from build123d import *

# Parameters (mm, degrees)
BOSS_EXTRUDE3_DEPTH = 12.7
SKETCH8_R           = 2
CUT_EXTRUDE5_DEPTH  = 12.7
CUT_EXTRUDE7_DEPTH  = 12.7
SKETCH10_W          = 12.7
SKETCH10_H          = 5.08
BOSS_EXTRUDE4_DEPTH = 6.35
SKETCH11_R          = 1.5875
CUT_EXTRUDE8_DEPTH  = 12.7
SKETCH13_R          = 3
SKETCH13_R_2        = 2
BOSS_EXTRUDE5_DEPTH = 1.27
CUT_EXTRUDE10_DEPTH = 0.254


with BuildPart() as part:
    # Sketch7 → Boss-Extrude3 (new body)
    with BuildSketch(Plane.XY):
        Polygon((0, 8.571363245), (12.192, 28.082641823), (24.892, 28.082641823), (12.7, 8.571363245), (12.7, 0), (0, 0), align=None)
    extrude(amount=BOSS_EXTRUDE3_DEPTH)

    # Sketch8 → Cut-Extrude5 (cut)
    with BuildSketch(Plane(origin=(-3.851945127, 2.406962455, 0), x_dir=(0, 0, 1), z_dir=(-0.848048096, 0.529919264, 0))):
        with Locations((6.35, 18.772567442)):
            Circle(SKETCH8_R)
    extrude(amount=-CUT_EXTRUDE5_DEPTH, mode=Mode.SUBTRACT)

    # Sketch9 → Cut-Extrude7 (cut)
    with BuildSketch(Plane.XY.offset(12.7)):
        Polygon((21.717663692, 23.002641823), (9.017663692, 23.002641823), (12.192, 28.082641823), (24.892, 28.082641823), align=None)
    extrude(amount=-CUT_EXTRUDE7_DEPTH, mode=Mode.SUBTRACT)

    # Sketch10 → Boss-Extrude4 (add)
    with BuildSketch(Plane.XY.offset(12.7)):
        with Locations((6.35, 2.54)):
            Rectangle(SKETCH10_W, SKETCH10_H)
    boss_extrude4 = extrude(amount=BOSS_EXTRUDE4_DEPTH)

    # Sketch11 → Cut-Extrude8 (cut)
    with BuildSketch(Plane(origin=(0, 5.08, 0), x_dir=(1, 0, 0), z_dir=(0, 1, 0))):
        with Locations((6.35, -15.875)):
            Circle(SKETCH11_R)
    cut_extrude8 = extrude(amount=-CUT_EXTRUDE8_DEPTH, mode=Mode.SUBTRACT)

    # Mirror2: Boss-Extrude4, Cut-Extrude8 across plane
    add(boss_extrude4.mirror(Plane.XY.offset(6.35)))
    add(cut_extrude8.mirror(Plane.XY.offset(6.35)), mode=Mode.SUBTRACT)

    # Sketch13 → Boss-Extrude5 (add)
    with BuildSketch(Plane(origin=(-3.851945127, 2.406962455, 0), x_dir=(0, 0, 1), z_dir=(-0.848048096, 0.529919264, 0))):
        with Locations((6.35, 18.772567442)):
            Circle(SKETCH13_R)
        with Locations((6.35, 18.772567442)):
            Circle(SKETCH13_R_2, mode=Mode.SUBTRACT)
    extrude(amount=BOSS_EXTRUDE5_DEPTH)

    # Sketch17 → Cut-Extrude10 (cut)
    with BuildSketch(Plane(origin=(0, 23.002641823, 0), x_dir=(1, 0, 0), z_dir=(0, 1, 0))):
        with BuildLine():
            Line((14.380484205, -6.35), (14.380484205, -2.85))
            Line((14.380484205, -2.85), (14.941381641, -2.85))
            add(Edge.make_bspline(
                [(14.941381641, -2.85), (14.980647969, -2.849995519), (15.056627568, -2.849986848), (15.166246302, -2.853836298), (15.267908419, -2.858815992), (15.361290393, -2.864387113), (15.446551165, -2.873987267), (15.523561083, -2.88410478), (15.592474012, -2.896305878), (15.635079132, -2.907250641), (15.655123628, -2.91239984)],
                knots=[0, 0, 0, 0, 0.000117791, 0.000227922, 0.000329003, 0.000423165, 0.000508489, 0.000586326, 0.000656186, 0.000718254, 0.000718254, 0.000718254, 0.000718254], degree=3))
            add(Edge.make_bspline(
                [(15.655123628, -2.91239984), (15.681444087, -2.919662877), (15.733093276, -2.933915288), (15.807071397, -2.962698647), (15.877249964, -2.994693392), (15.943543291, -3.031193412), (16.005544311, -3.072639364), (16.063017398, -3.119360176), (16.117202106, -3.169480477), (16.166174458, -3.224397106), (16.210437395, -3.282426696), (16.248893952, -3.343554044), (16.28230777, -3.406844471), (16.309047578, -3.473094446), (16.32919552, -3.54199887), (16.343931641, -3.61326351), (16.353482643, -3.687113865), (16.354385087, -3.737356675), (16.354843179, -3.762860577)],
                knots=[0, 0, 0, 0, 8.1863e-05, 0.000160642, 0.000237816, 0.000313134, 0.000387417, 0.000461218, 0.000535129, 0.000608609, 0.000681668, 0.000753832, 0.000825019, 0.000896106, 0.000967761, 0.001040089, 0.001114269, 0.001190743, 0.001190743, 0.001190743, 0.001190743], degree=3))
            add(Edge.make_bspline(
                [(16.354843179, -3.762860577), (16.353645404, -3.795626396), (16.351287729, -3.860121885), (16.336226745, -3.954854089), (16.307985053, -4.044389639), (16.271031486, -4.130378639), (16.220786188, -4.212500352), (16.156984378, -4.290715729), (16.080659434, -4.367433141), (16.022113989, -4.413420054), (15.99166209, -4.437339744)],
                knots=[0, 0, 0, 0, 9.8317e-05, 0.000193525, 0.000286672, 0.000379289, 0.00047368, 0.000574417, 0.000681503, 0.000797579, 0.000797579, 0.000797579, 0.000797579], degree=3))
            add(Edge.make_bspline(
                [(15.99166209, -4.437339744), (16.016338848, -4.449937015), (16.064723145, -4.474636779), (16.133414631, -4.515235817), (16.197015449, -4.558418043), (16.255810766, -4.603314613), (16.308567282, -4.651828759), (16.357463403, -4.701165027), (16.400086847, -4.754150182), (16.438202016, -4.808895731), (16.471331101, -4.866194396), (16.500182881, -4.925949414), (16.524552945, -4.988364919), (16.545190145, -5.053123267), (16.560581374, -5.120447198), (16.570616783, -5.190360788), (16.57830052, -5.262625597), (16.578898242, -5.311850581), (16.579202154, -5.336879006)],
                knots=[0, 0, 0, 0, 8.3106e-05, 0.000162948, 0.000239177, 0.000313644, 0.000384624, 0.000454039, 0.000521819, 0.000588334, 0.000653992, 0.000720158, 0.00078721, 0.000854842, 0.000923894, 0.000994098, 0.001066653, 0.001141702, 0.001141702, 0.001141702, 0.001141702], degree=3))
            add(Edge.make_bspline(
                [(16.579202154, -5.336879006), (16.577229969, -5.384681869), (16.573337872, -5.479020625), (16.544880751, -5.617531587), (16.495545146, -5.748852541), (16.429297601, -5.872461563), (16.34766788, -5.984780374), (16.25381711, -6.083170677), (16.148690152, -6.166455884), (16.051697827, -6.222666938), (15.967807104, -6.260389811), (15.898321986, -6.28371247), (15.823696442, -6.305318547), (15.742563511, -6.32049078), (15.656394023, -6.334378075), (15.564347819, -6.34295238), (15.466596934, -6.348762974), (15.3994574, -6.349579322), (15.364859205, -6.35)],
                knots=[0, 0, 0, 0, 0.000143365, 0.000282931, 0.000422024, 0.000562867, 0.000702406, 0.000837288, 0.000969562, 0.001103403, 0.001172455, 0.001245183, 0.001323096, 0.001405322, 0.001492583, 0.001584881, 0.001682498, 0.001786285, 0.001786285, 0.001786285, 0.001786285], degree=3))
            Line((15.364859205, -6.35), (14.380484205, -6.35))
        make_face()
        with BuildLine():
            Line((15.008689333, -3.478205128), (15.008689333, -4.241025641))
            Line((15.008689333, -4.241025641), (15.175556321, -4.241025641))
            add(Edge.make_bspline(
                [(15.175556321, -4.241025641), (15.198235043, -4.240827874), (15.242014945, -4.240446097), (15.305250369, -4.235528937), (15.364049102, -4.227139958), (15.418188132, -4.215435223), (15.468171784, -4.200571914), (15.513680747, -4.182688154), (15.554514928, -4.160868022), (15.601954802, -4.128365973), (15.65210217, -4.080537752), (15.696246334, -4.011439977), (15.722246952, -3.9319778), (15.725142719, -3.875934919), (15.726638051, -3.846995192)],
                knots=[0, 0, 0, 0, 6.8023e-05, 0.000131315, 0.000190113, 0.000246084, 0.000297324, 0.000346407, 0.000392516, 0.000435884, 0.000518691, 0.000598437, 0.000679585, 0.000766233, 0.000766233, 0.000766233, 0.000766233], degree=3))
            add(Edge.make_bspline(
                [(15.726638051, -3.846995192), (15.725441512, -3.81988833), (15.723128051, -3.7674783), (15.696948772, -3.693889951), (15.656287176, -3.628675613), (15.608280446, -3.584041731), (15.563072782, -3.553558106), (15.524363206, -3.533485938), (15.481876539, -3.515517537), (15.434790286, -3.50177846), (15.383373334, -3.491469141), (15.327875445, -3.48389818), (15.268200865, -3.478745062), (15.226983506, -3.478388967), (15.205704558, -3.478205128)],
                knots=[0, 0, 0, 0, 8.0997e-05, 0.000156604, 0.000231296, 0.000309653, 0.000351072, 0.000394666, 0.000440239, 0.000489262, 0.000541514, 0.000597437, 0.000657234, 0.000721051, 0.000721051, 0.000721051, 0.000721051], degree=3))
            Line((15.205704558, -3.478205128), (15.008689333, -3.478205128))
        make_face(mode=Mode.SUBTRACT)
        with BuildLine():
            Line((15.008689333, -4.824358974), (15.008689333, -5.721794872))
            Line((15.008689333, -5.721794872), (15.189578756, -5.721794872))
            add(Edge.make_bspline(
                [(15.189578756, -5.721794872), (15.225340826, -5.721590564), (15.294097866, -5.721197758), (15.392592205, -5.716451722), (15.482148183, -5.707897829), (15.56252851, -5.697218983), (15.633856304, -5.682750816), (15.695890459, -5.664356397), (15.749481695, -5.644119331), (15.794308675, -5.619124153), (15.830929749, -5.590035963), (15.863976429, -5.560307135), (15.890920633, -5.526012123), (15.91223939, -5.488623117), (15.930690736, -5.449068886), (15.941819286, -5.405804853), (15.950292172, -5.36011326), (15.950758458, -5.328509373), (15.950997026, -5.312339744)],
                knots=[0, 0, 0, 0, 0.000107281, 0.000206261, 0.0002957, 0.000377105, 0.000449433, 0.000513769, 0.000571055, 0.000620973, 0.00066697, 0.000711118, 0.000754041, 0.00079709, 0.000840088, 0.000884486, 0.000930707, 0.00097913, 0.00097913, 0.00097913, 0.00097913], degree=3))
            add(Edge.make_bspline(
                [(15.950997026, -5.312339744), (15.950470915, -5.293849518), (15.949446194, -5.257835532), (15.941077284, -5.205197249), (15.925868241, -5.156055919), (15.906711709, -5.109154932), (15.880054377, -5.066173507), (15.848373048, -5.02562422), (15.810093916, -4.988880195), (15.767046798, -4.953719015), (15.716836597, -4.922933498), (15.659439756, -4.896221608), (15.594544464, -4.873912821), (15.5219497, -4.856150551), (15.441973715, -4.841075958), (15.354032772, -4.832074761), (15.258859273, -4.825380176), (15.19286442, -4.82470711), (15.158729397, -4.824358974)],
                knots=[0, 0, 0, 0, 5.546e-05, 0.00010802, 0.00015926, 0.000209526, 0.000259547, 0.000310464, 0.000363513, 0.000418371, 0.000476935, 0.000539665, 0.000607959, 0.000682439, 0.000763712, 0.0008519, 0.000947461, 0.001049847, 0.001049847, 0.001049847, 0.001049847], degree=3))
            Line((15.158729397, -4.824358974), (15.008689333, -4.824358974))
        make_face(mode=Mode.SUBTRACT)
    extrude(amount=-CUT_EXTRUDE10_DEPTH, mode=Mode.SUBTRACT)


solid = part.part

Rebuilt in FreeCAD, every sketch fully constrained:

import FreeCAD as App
import Part
import Sketcher
Q = App.Units.Quantity


def add_polygon(sketch, points):
    """Adds a closed chain of lines whose ends are joined by coincident constraints."""
    first, n = sketch.GeometryCount, len(points)
    for a, b in zip(points, points[1:] + points[:1]):
        sketch.addGeometry(Part.LineSegment(App.Vector(*a, 0), App.Vector(*b, 0)), False)
    for i in range(n):
        sketch.addConstraint(Sketcher.Constraint("Coincident", first + i, 2, first + (i + 1) % n, 1))

doc = App.newDocument("Part")
body = doc.addObject("PartDesign::Body", "Body")

sketch1 = doc.addObject("Sketcher::SketchObject", "Sketch")
body.addObject(sketch1)
sketch1.AttachmentSupport = (doc.XY_Plane, [""])
sketch1.MapMode = "FlatFace"
add_polygon(sketch1, [(12, 28), (0, 9), (0, 0), (13, 0), (13, 9), (25, 28)])
sketch1.addConstraint([
    Sketcher.Constraint("Vertical", 1),
    Sketcher.Constraint("Horizontal", 2),
    Sketcher.Constraint("Vertical", 3),
    Sketcher.Constraint("Horizontal", 5),
    Sketcher.Constraint("Coincident", 1, 2, -1, 1),
    Sketcher.Constraint("Parallel", 0, 4),
    Sketcher.Constraint("Horizontal", 0, 2, 3, 2),
    Sketcher.Constraint("DistanceX", 2, 1, 2, 2, Q("0.5 in")),
    Sketcher.Constraint("Angle", 0, Q("-122 deg")),
    Sketcher.Constraint("DistanceX", -1, 1, 4, 2, Q("0.98 in")),
    Sketcher.Constraint("DistanceY", 1, 2, 1, 1, Q("8.571363 mm")),
])
pad1 = doc.addObject("PartDesign::Pad", "Pad")
body.addObject(pad1)
pad1.Profile = sketch1
pad1.Length = Q("0.5 in")

sketch2 = doc.addObject("Sketcher::SketchObject", "Sketch001")
body.addObject(sketch2)
sketch2.Placement = App.Placement(App.Vector(-3.851945, 2.406962, 0), App.Rotation(App.Vector(0, 0, 1), App.Vector(0.529919264, 0.848048096, 0), App.Vector(-0.848048096, 0.529919264, 0), "ZXY"))
sketch2.addGeometry(Part.Circle(App.Vector(6.3, 18.8, 0), App.Vector(0, 0, 1), 2), False)
sketch2.addConstraint([
    Sketcher.Constraint("Diameter", 0, Q("4 mm")),
    Sketcher.Constraint("DistanceX", -1, 1, 0, 3, Q("0.25 in")),
    Sketcher.Constraint("DistanceY", -1, 1, 0, 3, Q("18.772567 mm")),
])
pocket1 = doc.addObject("PartDesign::Pocket", "Pocket")
body.addObject(pocket1)
pocket1.Profile = sketch2
pocket1.Length = Q("0.5 in")

sketch3 = doc.addObject("Sketcher::SketchObject", "Sketch002")
body.addObject(sketch3)
sketch3.AttachmentSupport = (doc.XY_Plane, [""])
sketch3.MapMode = "FlatFace"
sketch3.AttachmentOffset = App.Placement(App.Vector(0, 0, 0.5 * 25.4), App.Rotation())
add_polygon(sketch3, [(9, 23), (22, 23), (25, 28), (12, 28)])
sketch3.addConstraint([
    Sketcher.Constraint("Horizontal", 0),
    Sketcher.Constraint("Horizontal", 2),
    Sketcher.Constraint("Parallel", 1, 3),
    Sketcher.Constraint("DistanceX", 0, 1, 0, 2, Q("0.5 in")),
    Sketcher.Constraint("Angle", 1, Q("58 deg")),
    Sketcher.Constraint("DistanceY", 0, 2, 1, 2, Q("0.2 in")),
    Sketcher.Constraint("DistanceX", -1, 1, 1, 2, Q("0.98 in")),
    Sketcher.Constraint("DistanceY", -1, 1, 0, 2, Q("23.002642 mm")),
])
pocket2 = doc.addObject("PartDesign::Pocket", "Pocket001")
body.addObject(pocket2)
pocket2.Profile = sketch3
pocket2.Length = Q("0.5 in")

sketch4 = doc.addObject("Sketcher::SketchObject", "Sketch003")
body.addObject(sketch4)
sketch4.AttachmentSupport = (doc.XY_Plane, [""])
sketch4.MapMode = "FlatFace"
sketch4.AttachmentOffset = App.Placement(App.Vector(0, 0, 0.5 * 25.4), App.Rotation())
add_polygon(sketch4, [(0, 5), (0, 0), (13, 0), (13, 5)])
sketch4.addConstraint([
    Sketcher.Constraint("Vertical", 0),
    Sketcher.Constraint("Horizontal", 1),
    Sketcher.Constraint("Vertical", 2),
    Sketcher.Constraint("Horizontal", 3),
    Sketcher.Constraint("Coincident", 0, 2, -1, 1),
    Sketcher.Constraint("DistanceX", 1, 1, 1, 2, Q("0.5 in")),
    Sketcher.Constraint("DistanceY", 0, 2, 0, 1, Q("0.2 in")),
])
pad2 = doc.addObject("PartDesign::Pad", "Pad001")
body.addObject(pad2)
pad2.Profile = sketch4
pad2.Length = Q("0.25 in")

sketch5 = doc.addObject("Sketcher::SketchObject", "Sketch004")
body.addObject(sketch5)
sketch5.AttachmentSupport = (doc.XZ_Plane, [""])
sketch5.MapMode = "FlatFace"
sketch5.AttachmentOffset = App.Placement(App.Vector(0, 0, -0.2 * 25.4), App.Rotation())
sketch5.addGeometry(Part.Circle(App.Vector(6.3, 15.9, 0), App.Vector(0, 0, 1), 1.6), False)
sketch5.addConstraint([
    Sketcher.Constraint("Diameter", 0, Q("0.125 in")),
    Sketcher.Constraint("DistanceX", -1, 1, 0, 3, Q("0.25 in")),
    Sketcher.Constraint("DistanceY", -1, 1, 0, 3, Q("0.625 in")),
])
pocket3 = doc.addObject("PartDesign::Pocket", "Pocket002")
body.addObject(pocket3)
pocket3.Profile = sketch5
pocket3.Length = Q("0.5 in")
pocket3.Reversed = True
doc.recompute()

datumplane = doc.addObject("PartDesign::Plane", "DatumPlane")
body.addObject(datumplane)
datumplane.AttachmentSupport = (doc.XY_Plane, [""])
datumplane.MapMode = "FlatFace"
datumplane.AttachmentOffset = App.Placement(App.Vector(0, 0, 0.25 * 25.4), App.Rotation())
mirrored = doc.addObject("PartDesign::Mirrored", "Mirrored")
body.addObject(mirrored)
mirrored.Originals = [pad2, pocket3]
mirrored.MirrorPlane = (datumplane, [""])
body.Tip = mirrored

sketch6 = doc.addObject("Sketcher::SketchObject", "Sketch005")
body.addObject(sketch6)
sketch6.Placement = App.Placement(App.Vector(-3.851945, 2.406962, 0), App.Rotation(App.Vector(0, 0, 1), App.Vector(0.529919264, 0.848048096, 0), App.Vector(-0.848048096, 0.529919264, 0), "ZXY"))
sketch6.addGeometry([
    Part.Circle(App.Vector(6.3, 18.8, 0), App.Vector(0, 0, 1), 3),
    Part.Circle(App.Vector(6.3, 18.8, 0), App.Vector(0, 0, 1), 2),
], False)
sketch6.addConstraint([
    Sketcher.Constraint("Coincident", 1, 3, 0, 3),
    Sketcher.Constraint("Diameter", 0, Q("6 mm")),
    Sketcher.Constraint("Diameter", 1, Q("4 mm")),
    Sketcher.Constraint("DistanceX", -1, 1, 0, 3, Q("0.25 in")),
    Sketcher.Constraint("DistanceY", -1, 1, 0, 3, Q("18.772567 mm")),
])
pad3 = doc.addObject("PartDesign::Pad", "Pad002")
body.addObject(pad3)
pad3.Profile = sketch6
pad3.Length = Q("0.05 in")

sketch7 = doc.addObject("Sketcher::SketchObject", "Sketch006")
body.addObject(sketch7)
sketch7.AttachmentSupport = (doc.XZ_Plane, [""])
sketch7.MapMode = "FlatFace"
sketch7.AttachmentOffset = App.Placement(App.Vector(0, 0, -23.002642), App.Rotation())
sketch7.addGeometry([
    Part.LineSegment(App.Vector(14.380484, 2.85, 0), App.Vector(14.380484, 6.35, 0)),
    Part.LineSegment(App.Vector(14.380484, 6.35, 0), App.Vector(15.364859, 6.35, 0)),
    Part.BSplineCurve([App.Vector(16.579202, 5.336879, 0), App.Vector(16.57723, 5.384682, 0), App.Vector(16.573338, 5.479021, 0), App.Vector(16.544881, 5.617532, 0), App.Vector(16.495545, 5.748853, 0), App.Vector(16.429298, 5.872462, 0), App.Vector(16.347668, 5.98478, 0), App.Vector(16.253817, 6.083171, 0), App.Vector(16.14869, 6.166456, 0), App.Vector(16.051698, 6.222667, 0), App.Vector(15.967807, 6.26039, 0), App.Vector(15.898322, 6.283712, 0), App.Vector(15.823696, 6.305319, 0), App.Vector(15.742564, 6.320491, 0), App.Vector(15.656394, 6.334378, 0), App.Vector(15.564348, 6.342952, 0), App.Vector(15.466597, 6.348763, 0), App.Vector(15.399457, 6.349579, 0), App.Vector(15.364859, 6.35, 0)], [4, 1, 1, 1, 1, 1, 1, 1, 1, 1, 1, 1, 1, 1, 1, 1, 4], [0, 0.000143365, 0.000282931, 0.000422024, 0.000562867, 0.000702406, 0.000837288, 0.000969562, 0.001103403, 0.001172455, 0.001245183, 0.001323096, 0.001405322, 0.001492583, 0.001584881, 0.001682498, 0.001786285], False, 3, [1, 1, 1, 1, 1, 1, 1, 1, 1, 1, 1, 1, 1, 1, 1, 1, 1, 1, 1], False),
    Part.BSplineCurve([App.Vector(15.991662, 4.43734, 0), App.Vector(16.016339, 4.449937, 0), App.Vector(16.064723, 4.474637, 0), App.Vector(16.133415, 4.515236, 0), App.Vector(16.197015, 4.558418, 0), App.Vector(16.255811, 4.603315, 0), App.Vector(16.308567, 4.651829, 0), App.Vector(16.357463, 4.701165, 0), App.Vector(16.400087, 4.75415, 0), App.Vector(16.438202, 4.808896, 0), App.Vector(16.471331, 4.866194, 0), App.Vector(16.500183, 4.925949, 0), App.Vector(16.524553, 4.988365, 0), App.Vector(16.54519, 5.053123, 0), App.Vector(16.560581, 5.120447, 0), App.Vector(16.570617, 5.190361, 0), App.Vector(16.578301, 5.262626, 0), App.Vector(16.578898, 5.311851, 0), App.Vector(16.579202, 5.336879, 0)], [4, 1, 1, 1, 1, 1, 1, 1, 1, 1, 1, 1, 1, 1, 1, 1, 4], [0, 0.000083106, 0.000162948, 0.000239177, 0.000313644, 0.000384624, 0.000454039, 0.000521819, 0.000588334, 0.000653992, 0.000720158, 0.00078721, 0.000854842, 0.000923894, 0.000994098, 0.001066653, 0.001141702], False, 3, [1, 1, 1, 1, 1, 1, 1, 1, 1, 1, 1, 1, 1, 1, 1, 1, 1, 1, 1], False),
    Part.BSplineCurve([App.Vector(16.354843, 3.762861, 0), App.Vector(16.353645, 3.795626, 0), App.Vector(16.351288, 3.860122, 0), App.Vector(16.336227, 3.954854, 0), App.Vector(16.307985, 4.04439, 0), App.Vector(16.271031, 4.130379, 0), App.Vector(16.220786, 4.2125, 0), App.Vector(16.156984, 4.290716, 0), App.Vector(16.080659, 4.367433, 0), App.Vector(16.022114, 4.41342, 0), App.Vector(15.991662, 4.43734, 0)], [4, 1, 1, 1, 1, 1, 1, 1, 4], [0, 0.000098317, 0.000193525, 0.000286672, 0.000379289, 0.00047368, 0.000574417, 0.000681503, 0.000797579], False, 3, [1, 1, 1, 1, 1, 1, 1, 1, 1, 1, 1], False),
    Part.BSplineCurve([App.Vector(15.655124, 2.9124, 0), App.Vector(15.681444, 2.919663, 0), App.Vector(15.733093, 2.933915, 0), App.Vector(15.807071, 2.962699, 0), App.Vector(15.87725, 2.994693, 0), App.Vector(15.943543, 3.031193, 0), App.Vector(16.005544, 3.072639, 0), App.Vector(16.063017, 3.11936, 0), App.Vector(16.117202, 3.16948, 0), App.Vector(16.166174, 3.224397, 0), App.Vector(16.210437, 3.282427, 0), App.Vector(16.248894, 3.343554, 0), App.Vector(16.282308, 3.406844, 0), App.Vector(16.309048, 3.473094, 0), App.Vector(16.329196, 3.541999, 0), App.Vector(16.343932, 3.613264, 0), App.Vector(16.353483, 3.687114, 0), App.Vector(16.354385, 3.737357, 0), App.Vector(16.354843, 3.762861, 0)], [4, 1, 1, 1, 1, 1, 1, 1, 1, 1, 1, 1, 1, 1, 1, 1, 4], [0, 0.000081863, 0.000160642, 0.000237816, 0.000313134, 0.000387417, 0.000461218, 0.000535129, 0.000608609, 0.000681668, 0.000753832, 0.000825019, 0.000896106, 0.000967761, 0.001040089, 0.001114269, 0.001190743], False, 3, [1, 1, 1, 1, 1, 1, 1, 1, 1, 1, 1, 1, 1, 1, 1, 1, 1, 1, 1], False),
    Part.BSplineCurve([App.Vector(14.941382, 2.85, 0), App.Vector(14.980648, 2.849996, 0), App.Vector(15.056628, 2.849987, 0), App.Vector(15.166246, 2.853836, 0), App.Vector(15.267908, 2.858816, 0), App.Vector(15.36129, 2.864387, 0), App.Vector(15.446551, 2.873987, 0), App.Vector(15.523561, 2.884105, 0), App.Vector(15.592474, 2.896306, 0), App.Vector(15.635079, 2.907251, 0), App.Vector(15.655124, 2.9124, 0)], [4, 1, 1, 1, 1, 1, 1, 1, 4], [0, 0.000117791, 0.000227922, 0.000329003, 0.000423165, 0.000508489, 0.000586326, 0.000656186, 0.000718254], False, 3, [1, 1, 1, 1, 1, 1, 1, 1, 1, 1, 1], False),
    Part.LineSegment(App.Vector(14.941382, 2.85, 0), App.Vector(14.380484, 2.85, 0)),
    Part.LineSegment(App.Vector(15.008689, 4.824359, 0), App.Vector(15.158729, 4.824359, 0)),
    Part.BSplineCurve([App.Vector(15.950997, 5.31234, 0), App.Vector(15.950471, 5.29385, 0), App.Vector(15.949446, 5.257836, 0), App.Vector(15.941077, 5.205197, 0), App.Vector(15.925868, 5.156056, 0), App.Vector(15.906712, 5.109155, 0), App.Vector(15.880054, 5.066174, 0), App.Vector(15.848373, 5.025624, 0), App.Vector(15.810094, 4.98888, 0), App.Vector(15.767047, 4.953719, 0), App.Vector(15.716837, 4.922933, 0), App.Vector(15.65944, 4.896222, 0), App.Vector(15.594544, 4.873913, 0), App.Vector(15.52195, 4.856151, 0), App.Vector(15.441974, 4.841076, 0), App.Vector(15.354033, 4.832075, 0), App.Vector(15.258859, 4.82538, 0), App.Vector(15.192864, 4.824707, 0), App.Vector(15.158729, 4.824359, 0)], [4, 1, 1, 1, 1, 1, 1, 1, 1, 1, 1, 1, 1, 1, 1, 1, 4], [0, 0.00005546, 0.00010802, 0.00015926, 0.000209526, 0.000259547, 0.000310464, 0.000363513, 0.000418371, 0.000476935, 0.000539665, 0.000607959, 0.000682439, 0.000763712, 0.0008519, 0.000947461, 0.001049847], False, 3, [1, 1, 1, 1, 1, 1, 1, 1, 1, 1, 1, 1, 1, 1, 1, 1, 1, 1, 1], False),
    Part.BSplineCurve([App.Vector(15.189579, 5.721795, 0), App.Vector(15.225341, 5.721591, 0), App.Vector(15.294098, 5.721198, 0), App.Vector(15.392592, 5.716452, 0), App.Vector(15.482148, 5.707898, 0), App.Vector(15.562529, 5.697219, 0), App.Vector(15.633856, 5.682751, 0), App.Vector(15.69589, 5.664356, 0), App.Vector(15.749482, 5.644119, 0), App.Vector(15.794309, 5.619124, 0), App.Vector(15.83093, 5.590036, 0), App.Vector(15.863976, 5.560307, 0), App.Vector(15.890921, 5.526012, 0), App.Vector(15.912239, 5.488623, 0), App.Vector(15.930691, 5.449069, 0), App.Vector(15.941819, 5.405805, 0), App.Vector(15.950292, 5.360113, 0), App.Vector(15.950758, 5.328509, 0), App.Vector(15.950997, 5.31234, 0)], [4, 1, 1, 1, 1, 1, 1, 1, 1, 1, 1, 1, 1, 1, 1, 1, 4], [0, 0.000107281, 0.000206261, 0.0002957, 0.000377105, 0.000449433, 0.000513769, 0.000571055, 0.000620973, 0.00066697, 0.000711118, 0.000754041, 0.00079709, 0.000840088, 0.000884486, 0.000930707, 0.00097913], False, 3, [1, 1, 1, 1, 1, 1, 1, 1, 1, 1, 1, 1, 1, 1, 1, 1, 1, 1, 1], False),
    Part.LineSegment(App.Vector(15.189579, 5.721795, 0), App.Vector(15.008689, 5.721795, 0)),
    Part.LineSegment(App.Vector(15.008689, 5.721795, 0), App.Vector(15.008689, 4.824359, 0)),
    Part.LineSegment(App.Vector(15.008689, 3.478205, 0), App.Vector(15.205705, 3.478205, 0)),
    Part.BSplineCurve([App.Vector(15.726638, 3.846995, 0), App.Vector(15.725442, 3.819888, 0), App.Vector(15.723128, 3.767478, 0), App.Vector(15.696949, 3.69389, 0), App.Vector(15.656287, 3.628676, 0), App.Vector(15.60828, 3.584042, 0), App.Vector(15.563073, 3.553558, 0), App.Vector(15.524363, 3.533486, 0), App.Vector(15.481877, 3.515518, 0), App.Vector(15.43479, 3.501778, 0), App.Vector(15.383373, 3.491469, 0), App.Vector(15.327875, 3.483898, 0), App.Vector(15.268201, 3.478745, 0), App.Vector(15.226984, 3.478389, 0), App.Vector(15.205705, 3.478205, 0)], [4, 1, 1, 1, 1, 1, 1, 1, 1, 1, 1, 1, 4], [0, 0.000080997, 0.000156604, 0.000231296, 0.000309653, 0.000351072, 0.000394666, 0.000440239, 0.000489262, 0.000541514, 0.000597437, 0.000657234, 0.000721051], False, 3, [1, 1, 1, 1, 1, 1, 1, 1, 1, 1, 1, 1, 1, 1, 1], False),
    Part.BSplineCurve([App.Vector(15.175556, 4.241026, 0), App.Vector(15.198235, 4.240828, 0), App.Vector(15.242015, 4.240446, 0), App.Vector(15.30525, 4.235529, 0), App.Vector(15.364049, 4.22714, 0), App.Vector(15.418188, 4.215435, 0), App.Vector(15.468172, 4.200572, 0), App.Vector(15.513681, 4.182688, 0), App.Vector(15.554515, 4.160868, 0), App.Vector(15.601955, 4.128366, 0), App.Vector(15.652102, 4.080538, 0), App.Vector(15.696246, 4.01144, 0), App.Vector(15.722247, 3.931978, 0), App.Vector(15.725143, 3.875935, 0), App.Vector(15.726638, 3.846995, 0)], [4, 1, 1, 1, 1, 1, 1, 1, 1, 1, 1, 1, 4], [0, 0.000068023, 0.000131315, 0.000190113, 0.000246084, 0.000297324, 0.000346407, 0.000392516, 0.000435884, 0.000518691, 0.000598437, 0.000679585, 0.000766233], False, 3, [1, 1, 1, 1, 1, 1, 1, 1, 1, 1, 1, 1, 1, 1, 1], False),
    Part.LineSegment(App.Vector(15.175556, 4.241026, 0), App.Vector(15.008689, 4.241026, 0)),
    Part.LineSegment(App.Vector(15.008689, 4.241026, 0), App.Vector(15.008689, 3.478205, 0)),
], False)
sketch7.addConstraint([
    Sketcher.Constraint("Block", 2),
    Sketcher.Constraint("Block", 3),
    Sketcher.Constraint("Block", 4),
    Sketcher.Constraint("Block", 5),
    Sketcher.Constraint("Block", 6),
    Sketcher.Constraint("Block", 9),
    Sketcher.Constraint("Block", 10),
    Sketcher.Constraint("Block", 14),
    Sketcher.Constraint("Block", 15),
    Sketcher.Constraint("Coincident", 0, 2, 1, 1),
    Sketcher.Constraint("Coincident", 1, 2, 2, 2),
    Sketcher.Constraint("Coincident", 6, 1, 7, 1),
    Sketcher.Constraint("Coincident", 7, 2, 0, 1),
    Sketcher.Constraint("Coincident", 8, 2, 9, 2),
    Sketcher.Constraint("Coincident", 10, 1, 11, 1),
    Sketcher.Constraint("Coincident", 11, 2, 12, 1),
    Sketcher.Constraint("Coincident", 12, 2, 8, 1),
    Sketcher.Constraint("Coincident", 13, 2, 14, 2),
    Sketcher.Constraint("Coincident", 15, 1, 16, 1),
    Sketcher.Constraint("Coincident", 16, 2, 17, 1),
    Sketcher.Constraint("Coincident", 17, 2, 13, 1),
    Sketcher.Constraint("Vertical", 0),
    Sketcher.Constraint("Horizontal", 1),
    Sketcher.Constraint("Horizontal", 7),
    Sketcher.Constraint("Horizontal", 8),
    Sketcher.Constraint("Horizontal", 11),
    Sketcher.Constraint("Vertical", 12),
    Sketcher.Constraint("Horizontal", 13),
    Sketcher.Constraint("Horizontal", 16),
    Sketcher.Constraint("Vertical", 17),
    Sketcher.Constraint("Vertical", 12, 2, 16, 2),
    Sketcher.Constraint("DistanceX", 8, 1, 8, 2, Q("0.15004 mm")),
    Sketcher.Constraint("DistanceX", 1, 1, 1, 2, Q("0.984375 mm")),
])
pocket4 = doc.addObject("PartDesign::Pocket", "Pocket003")
body.addObject(pocket4)
pocket4.Profile = sketch7
pocket4.Length = Q("0.01 in")
pocket4.Reversed = True

doc.recompute()
